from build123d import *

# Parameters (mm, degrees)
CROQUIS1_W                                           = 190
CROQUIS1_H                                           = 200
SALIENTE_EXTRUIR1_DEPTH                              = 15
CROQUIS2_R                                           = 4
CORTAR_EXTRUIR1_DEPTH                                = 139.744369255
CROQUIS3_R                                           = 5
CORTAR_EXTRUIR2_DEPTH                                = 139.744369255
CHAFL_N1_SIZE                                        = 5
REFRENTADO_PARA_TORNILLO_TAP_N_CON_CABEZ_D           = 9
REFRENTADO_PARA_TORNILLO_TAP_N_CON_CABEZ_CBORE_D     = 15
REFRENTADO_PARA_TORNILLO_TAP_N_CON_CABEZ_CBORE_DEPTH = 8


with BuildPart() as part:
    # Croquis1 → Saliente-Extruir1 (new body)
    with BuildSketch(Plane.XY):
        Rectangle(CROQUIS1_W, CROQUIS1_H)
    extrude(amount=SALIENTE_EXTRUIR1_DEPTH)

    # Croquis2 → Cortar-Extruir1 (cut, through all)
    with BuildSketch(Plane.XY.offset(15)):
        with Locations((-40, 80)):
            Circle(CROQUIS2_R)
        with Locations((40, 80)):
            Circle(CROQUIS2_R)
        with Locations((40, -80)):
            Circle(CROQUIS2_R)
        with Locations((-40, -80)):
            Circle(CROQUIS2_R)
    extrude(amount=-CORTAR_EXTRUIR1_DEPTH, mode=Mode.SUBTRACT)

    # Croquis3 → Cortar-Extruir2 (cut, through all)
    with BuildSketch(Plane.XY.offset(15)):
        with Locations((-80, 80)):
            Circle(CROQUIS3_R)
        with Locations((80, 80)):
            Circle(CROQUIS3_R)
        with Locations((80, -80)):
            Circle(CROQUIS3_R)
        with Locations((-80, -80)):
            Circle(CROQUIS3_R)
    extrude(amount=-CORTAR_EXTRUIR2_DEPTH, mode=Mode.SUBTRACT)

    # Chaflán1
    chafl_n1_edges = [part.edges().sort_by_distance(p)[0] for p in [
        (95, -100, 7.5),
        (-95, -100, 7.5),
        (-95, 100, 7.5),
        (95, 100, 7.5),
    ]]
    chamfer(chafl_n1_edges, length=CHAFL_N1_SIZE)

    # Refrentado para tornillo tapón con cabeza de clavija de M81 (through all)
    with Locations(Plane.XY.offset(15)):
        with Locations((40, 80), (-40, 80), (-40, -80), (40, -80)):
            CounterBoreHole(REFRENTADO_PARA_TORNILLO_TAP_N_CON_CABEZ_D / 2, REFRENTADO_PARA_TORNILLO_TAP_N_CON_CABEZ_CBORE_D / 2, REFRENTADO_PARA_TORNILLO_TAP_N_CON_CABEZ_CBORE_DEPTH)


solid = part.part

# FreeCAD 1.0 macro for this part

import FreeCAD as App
import Part
import Sketcher

V = App.Vector
Q = App.Units.Quantity


def edges_at(feature, points):
    """Names of the edges that pass closest to the given points."""
    edges = feature.Shape.Edges
    near = lambda p: min(range(len(edges)), key=lambda i: edges[i].distToShape(Part.Vertex(*p))[0])
    return sorted({f"Edge{near(p) + 1}" for p in points})


def add_polygon(sketch, points):
    """Adds a closed chain of lines whose ends are joined by coincident constraints."""
    first, n = sketch.GeometryCount, len(points)
    for a, b in zip(points, points[1:] + points[:1]):
        sketch.addGeometry(Part.LineSegment(App.Vector(*a, 0), App.Vector(*b, 0)), False)
    for i in range(n):
        sketch.addConstraint(Sketcher.Constraint("Coincident", first + i, 2, first + (i + 1) % n, 1))

doc = App.newDocument("Part")
body = doc.addObject("PartDesign::Body", "Body")

# Sketch on XY plane
sketch1 = body.newObject("Sketcher::SketchObject", "Sketch")
sketch1.AttachmentSupport = (doc.getObject("XY_Plane"), [""])
sketch1.MapMode = "FlatFace"
add_polygon(sketch1, [(-95, 100), (-95, -100), (95, -100), (95, 100)])  # lines 0-3
sketch1.addConstraint([
    Sketcher.Constraint("Vertical", 0),
    Sketcher.Constraint("Horizontal", 1),
    Sketcher.Constraint("Vertical", 2),
    Sketcher.Constraint("Horizontal", 3),
    Sketcher.Constraint("Symmetric", 0, 2, 2, 2, -1, 1),
    Sketcher.Constraint("DistanceX", 1, 1, 1, 2, Q("190 mm")),
    Sketcher.Constraint("DistanceY", 0, 2, 0, 1, Q("200 mm")),
])
pad1 = body.newObject("PartDesign::Pad", "Pad")
pad1.Profile = sketch1
pad1.Length = 15

# Sketch on XY plane
sketch2 = body.newObject("Sketcher::SketchObject", "Sketch001")
sketch2.AttachmentSupport = (doc.getObject("XY_Plane"), [""])
sketch2.MapMode = "FlatFace"
sketch2.AttachmentOffset = App.Placement(V(0, 0, 15), App.Rotation())
sketch2.addGeometry([
    Part.Circle(V(-40, 80, 0), V(0, 0, 1), 4),
    Part.Circle(V(40, 80, 0), V(0, 0, 1), 4),
    Part.Circle(V(40, -80, 0), V(0, 0, 1), 4),
    Part.Circle(V(-40, -80, 0), V(0, 0, 1), 4),
], False)
sketch2.addConstraint([
    Sketcher.Constraint("Equal", 0, 1),
    Sketcher.Constraint("Equal", 1, 2),
    Sketcher.Constraint("Equal", 2, 3),
    Sketcher.Constraint("Symmetric", 0, 3, 2, 3, -1, 1),
    Sketcher.Constraint("Symmetric", 1, 3, 3, 3, -1, 1),
    Sketcher.Constraint("Symmetric", 0, 3, 1, 3, -2),
    Sketcher.Constraint("Diameter", 0, Q("8 mm")),
    Sketcher.Constraint("DistanceX", 0, 3, -1, 1, Q("40 mm")),
    Sketcher.Constraint("DistanceY", -1, 1, 0, 3, Q("80 mm")),
])
pocket1 = body.newObject("PartDesign::Pocket", "Pocket")
pocket1.Profile = sketch2
pocket1.Type = "ThroughAll"

# Sketch on XY plane
sketch3 = body.newObject("Sketcher::SketchObject", "Sketch002")
sketch3.AttachmentSupport = (doc.getObject("XY_Plane"), [""])
sketch3.MapMode = "FlatFace"
sketch3.AttachmentOffset = App.Placement(V(0, 0, 15), App.Rotation())
sketch3.addGeometry([
    Part.Circle(V(-80, 80, 0), V(0, 0, 1), 5),
    Part.Circle(V(80, 80, 0), V(0, 0, 1), 5),
    Part.Circle(V(80, -80, 0), V(0, 0, 1), 5),
    Part.Circle(V(-80, -80, 0), V(0, 0, 1), 5),
], False)
sketch3.addConstraint([
    Sketcher.Constraint("Equal", 0, 1),
    Sketcher.Constraint("Equal", 1, 2),
    Sketcher.Constraint("Equal", 2, 3),
    Sketcher.Constraint("Symmetric", 0, 3, 2, 3, -1, 1),
    Sketcher.Constraint("Symmetric", 1, 3, 3, 3, -1, 1),
    Sketcher.Constraint("Symmetric", 0, 3, 1, 3, -2),
    Sketcher.Constraint("Diameter", 0, Q("10 mm")),
    Sketcher.Constraint("DistanceX", 0, 3, -1, 1, Q("80 mm")),
    Sketcher.Constraint("DistanceY", -1, 1, 0, 3, Q("80 mm")),
])
pocket2 = body.newObject("PartDesign::Pocket", "Pocket001")
pocket2.Profile = sketch3
pocket2.Type = "ThroughAll"
doc.recompute()

chamfer = body.newObject("PartDesign::Chamfer", "Chamfer")
chamfer.Base = (pocket2, edges_at(pocket2, [
    (95, -100, 7.5),
    (-95, -100, 7.5),
    (-95, 100, 7.5),
    (95, 100, 7.5),
]))
chamfer.Size = 5

# Sketch on XY plane
sketch4 = body.newObject("Sketcher::SketchObject", "Sketch003")
sketch4.AttachmentSupport = (doc.getObject("XY_Plane"), [""])
sketch4.MapMode = "FlatFace"
sketch4.AttachmentOffset = App.Placement(V(0, 0, 15), App.Rotation())
sketch4.addGeometry([
    Part.Circle(V(40, 80, 0), V(0, 0, 1), 4.5),
    Part.Circle(V(-40, 80, 0), V(0, 0, 1), 4.5),
    Part.Circle(V(-40, -80, 0), V(0, 0, 1), 4.5),
    Part.Circle(V(40, -80, 0), V(0, 0, 1), 4.5),
], False)
sketch4.addConstraint([
    Sketcher.Constraint("Equal", 0, 1),
    Sketcher.Constraint("Equal", 1, 2),
    Sketcher.Constraint("Equal", 2, 3),
    Sketcher.Constraint("Symmetric", 0, 3, 2, 3, -1, 1),
    Sketcher.Constraint("Symmetric", 1, 3, 3, 3, -1, 1),
    Sketcher.Constraint("Symmetric", 0, 3, 1, 3, -2),
    Sketcher.Constraint("Diameter", 0, Q("9 mm")),
    Sketcher.Constraint("DistanceX", -1, 1, 0, 3, Q("40 mm")),
    Sketcher.Constraint("DistanceY", -1, 1, 0, 3, Q("80 mm")),
])
doc.recompute()
hole = body.newObject("PartDesign::Hole", "Hole")
hole.Profile = sketch4
hole.ThreadType = "None"
hole.Diameter = 9
hole.DepthType = "ThroughAll"
hole.HoleCutType = "Counterbore"
hole.HoleCutDiameter = 15
hole.HoleCutDepth = 8

doc.recompute()
